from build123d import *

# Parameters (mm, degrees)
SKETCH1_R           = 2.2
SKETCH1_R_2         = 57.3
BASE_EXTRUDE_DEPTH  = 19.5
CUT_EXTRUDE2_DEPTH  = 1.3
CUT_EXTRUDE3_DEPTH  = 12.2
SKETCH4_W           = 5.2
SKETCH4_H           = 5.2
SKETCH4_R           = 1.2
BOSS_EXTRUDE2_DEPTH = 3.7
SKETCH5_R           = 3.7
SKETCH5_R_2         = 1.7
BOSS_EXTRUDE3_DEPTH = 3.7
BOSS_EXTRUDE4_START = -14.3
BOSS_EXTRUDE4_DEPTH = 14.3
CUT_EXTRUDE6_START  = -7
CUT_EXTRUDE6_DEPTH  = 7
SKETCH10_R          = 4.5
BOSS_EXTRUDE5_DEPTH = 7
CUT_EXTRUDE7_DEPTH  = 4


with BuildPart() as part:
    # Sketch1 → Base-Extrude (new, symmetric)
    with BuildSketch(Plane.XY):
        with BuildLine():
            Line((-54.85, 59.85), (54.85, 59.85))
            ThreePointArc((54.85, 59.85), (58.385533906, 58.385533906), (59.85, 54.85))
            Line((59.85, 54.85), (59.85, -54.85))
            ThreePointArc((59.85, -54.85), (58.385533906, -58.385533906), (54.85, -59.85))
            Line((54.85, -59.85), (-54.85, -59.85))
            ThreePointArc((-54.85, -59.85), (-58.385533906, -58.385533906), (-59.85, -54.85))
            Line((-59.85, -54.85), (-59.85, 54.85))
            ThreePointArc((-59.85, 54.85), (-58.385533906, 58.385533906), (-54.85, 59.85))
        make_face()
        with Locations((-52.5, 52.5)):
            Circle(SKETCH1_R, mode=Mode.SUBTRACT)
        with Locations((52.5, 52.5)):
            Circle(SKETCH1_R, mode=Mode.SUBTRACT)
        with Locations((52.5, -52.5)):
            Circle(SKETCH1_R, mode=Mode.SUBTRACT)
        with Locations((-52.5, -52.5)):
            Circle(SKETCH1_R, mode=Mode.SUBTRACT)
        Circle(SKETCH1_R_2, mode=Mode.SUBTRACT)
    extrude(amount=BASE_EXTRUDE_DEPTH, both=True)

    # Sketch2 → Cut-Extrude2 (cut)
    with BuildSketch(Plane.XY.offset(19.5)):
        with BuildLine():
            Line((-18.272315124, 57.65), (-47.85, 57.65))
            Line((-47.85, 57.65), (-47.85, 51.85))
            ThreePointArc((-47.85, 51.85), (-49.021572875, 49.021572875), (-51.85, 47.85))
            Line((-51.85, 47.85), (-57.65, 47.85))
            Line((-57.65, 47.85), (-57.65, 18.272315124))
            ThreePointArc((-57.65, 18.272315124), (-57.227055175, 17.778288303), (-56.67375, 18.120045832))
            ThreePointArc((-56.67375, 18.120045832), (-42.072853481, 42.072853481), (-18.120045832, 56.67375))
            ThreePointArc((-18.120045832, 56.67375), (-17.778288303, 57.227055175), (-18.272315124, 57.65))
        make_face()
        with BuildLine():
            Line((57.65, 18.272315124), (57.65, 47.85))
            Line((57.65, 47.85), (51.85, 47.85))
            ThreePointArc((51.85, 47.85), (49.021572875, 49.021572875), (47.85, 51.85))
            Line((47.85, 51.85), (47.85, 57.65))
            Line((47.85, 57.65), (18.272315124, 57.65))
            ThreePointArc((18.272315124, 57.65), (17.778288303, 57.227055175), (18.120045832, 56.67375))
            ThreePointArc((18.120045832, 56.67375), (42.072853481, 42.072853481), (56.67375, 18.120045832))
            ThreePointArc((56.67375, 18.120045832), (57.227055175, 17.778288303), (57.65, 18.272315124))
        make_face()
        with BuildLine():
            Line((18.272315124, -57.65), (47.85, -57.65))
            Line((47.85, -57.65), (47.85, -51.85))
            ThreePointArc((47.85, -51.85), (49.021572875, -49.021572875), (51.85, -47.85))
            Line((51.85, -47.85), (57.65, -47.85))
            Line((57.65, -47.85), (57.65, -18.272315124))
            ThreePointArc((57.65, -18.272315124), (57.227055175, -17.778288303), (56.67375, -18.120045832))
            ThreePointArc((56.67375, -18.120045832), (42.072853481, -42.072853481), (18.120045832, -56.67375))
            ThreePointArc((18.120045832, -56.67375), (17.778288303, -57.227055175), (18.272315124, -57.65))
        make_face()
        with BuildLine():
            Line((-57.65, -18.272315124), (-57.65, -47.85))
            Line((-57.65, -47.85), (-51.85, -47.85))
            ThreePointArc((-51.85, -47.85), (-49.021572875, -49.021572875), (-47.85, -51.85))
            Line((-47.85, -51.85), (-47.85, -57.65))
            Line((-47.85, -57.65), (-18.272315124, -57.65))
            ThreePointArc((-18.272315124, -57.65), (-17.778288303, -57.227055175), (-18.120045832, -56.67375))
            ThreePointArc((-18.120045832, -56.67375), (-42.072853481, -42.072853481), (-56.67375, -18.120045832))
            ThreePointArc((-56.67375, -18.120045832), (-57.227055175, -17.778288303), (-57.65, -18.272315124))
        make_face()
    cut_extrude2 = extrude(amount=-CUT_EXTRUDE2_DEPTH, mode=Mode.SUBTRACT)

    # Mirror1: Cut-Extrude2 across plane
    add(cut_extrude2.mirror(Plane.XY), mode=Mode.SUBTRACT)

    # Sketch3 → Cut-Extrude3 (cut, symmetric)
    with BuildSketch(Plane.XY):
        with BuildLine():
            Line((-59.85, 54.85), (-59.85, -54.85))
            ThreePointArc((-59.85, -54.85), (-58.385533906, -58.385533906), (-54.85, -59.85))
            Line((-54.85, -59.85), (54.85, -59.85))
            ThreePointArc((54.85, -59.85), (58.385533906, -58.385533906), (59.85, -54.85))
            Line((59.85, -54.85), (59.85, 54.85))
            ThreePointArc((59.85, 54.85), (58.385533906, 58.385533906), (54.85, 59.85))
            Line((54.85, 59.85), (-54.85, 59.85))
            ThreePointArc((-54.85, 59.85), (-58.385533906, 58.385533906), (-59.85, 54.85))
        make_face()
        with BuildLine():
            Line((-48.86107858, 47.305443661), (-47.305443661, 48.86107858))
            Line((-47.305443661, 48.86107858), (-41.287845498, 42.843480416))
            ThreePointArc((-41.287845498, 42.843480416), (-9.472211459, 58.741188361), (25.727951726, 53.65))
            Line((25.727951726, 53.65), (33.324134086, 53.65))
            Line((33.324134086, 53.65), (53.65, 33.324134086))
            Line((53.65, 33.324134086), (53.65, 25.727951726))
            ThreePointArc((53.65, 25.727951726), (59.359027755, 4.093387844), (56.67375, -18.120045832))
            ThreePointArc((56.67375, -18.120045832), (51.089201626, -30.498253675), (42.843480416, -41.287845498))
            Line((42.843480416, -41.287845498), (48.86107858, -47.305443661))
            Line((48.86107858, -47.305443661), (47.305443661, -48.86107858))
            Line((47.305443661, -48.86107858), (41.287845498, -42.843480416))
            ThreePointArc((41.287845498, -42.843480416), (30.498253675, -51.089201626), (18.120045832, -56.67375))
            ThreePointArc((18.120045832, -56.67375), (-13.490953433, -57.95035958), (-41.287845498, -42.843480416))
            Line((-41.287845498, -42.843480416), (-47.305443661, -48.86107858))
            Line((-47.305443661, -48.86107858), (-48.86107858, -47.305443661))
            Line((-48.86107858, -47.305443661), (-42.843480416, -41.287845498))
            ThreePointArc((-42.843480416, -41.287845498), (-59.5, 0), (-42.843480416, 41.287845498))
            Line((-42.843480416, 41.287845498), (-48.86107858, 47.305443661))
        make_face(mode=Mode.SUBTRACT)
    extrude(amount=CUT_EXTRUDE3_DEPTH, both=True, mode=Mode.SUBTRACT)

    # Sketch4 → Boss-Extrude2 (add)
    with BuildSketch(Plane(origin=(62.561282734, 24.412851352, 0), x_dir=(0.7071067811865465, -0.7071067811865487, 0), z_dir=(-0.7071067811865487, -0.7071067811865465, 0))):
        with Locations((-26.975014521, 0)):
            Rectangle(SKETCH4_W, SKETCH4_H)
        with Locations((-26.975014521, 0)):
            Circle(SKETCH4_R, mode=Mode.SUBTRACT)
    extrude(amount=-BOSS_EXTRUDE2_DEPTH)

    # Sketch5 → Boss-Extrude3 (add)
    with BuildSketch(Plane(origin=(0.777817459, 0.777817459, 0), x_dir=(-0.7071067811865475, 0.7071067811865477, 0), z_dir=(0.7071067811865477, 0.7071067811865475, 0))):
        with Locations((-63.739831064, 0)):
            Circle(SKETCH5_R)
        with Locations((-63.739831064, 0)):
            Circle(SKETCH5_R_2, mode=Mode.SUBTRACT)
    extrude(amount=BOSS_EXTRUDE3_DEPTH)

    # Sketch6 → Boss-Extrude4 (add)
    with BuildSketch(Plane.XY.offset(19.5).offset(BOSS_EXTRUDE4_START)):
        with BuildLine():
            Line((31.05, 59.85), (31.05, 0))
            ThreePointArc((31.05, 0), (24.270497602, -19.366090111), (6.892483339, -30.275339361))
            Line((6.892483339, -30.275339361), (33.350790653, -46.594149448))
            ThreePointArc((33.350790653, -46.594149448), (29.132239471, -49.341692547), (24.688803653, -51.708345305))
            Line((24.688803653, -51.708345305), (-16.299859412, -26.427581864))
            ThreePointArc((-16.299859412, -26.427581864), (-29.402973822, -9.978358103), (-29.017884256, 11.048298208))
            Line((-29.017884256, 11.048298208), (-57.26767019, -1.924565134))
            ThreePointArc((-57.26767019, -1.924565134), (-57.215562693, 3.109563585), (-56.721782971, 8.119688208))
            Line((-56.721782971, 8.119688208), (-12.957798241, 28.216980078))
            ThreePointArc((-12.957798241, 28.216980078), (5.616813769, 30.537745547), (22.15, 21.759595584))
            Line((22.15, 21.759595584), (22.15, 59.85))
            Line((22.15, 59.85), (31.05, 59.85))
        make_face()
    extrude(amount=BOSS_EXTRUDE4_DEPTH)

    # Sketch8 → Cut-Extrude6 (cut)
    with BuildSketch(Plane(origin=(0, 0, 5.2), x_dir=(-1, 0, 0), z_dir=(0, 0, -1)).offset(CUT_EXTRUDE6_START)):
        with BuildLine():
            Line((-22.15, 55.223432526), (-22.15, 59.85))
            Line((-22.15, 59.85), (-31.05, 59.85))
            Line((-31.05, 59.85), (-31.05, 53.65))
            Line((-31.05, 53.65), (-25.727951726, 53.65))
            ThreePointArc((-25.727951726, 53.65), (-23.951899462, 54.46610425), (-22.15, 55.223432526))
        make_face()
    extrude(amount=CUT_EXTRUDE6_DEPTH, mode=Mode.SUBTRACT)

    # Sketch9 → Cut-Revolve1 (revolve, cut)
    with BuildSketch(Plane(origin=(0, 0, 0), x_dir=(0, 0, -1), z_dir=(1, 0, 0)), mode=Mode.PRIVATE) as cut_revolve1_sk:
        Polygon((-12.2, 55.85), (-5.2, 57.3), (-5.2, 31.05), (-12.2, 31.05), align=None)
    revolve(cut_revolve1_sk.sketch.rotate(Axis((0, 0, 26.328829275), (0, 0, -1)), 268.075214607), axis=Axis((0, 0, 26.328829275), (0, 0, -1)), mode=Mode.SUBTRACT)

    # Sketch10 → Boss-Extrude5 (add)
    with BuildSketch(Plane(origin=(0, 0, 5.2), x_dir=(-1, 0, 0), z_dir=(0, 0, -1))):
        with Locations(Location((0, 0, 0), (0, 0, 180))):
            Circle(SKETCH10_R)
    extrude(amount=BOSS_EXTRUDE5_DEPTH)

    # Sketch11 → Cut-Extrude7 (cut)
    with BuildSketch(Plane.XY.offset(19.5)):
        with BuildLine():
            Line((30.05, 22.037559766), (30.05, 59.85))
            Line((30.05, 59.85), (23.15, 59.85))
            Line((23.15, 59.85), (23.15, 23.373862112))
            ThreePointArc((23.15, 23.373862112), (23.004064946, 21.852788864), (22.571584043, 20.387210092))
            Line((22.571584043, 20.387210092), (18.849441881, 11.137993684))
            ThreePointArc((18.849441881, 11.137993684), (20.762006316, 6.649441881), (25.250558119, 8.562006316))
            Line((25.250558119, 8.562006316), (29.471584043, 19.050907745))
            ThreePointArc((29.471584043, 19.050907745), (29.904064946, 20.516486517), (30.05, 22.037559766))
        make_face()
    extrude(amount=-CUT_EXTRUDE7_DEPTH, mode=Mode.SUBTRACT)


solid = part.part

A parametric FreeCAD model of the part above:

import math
import FreeCAD as App
import Part
import Sketcher
from FreeCAD import Vector
Q = App.Units.Quantity

doc = App.newDocument("Part")
body = doc.addObject("PartDesign::Body", "Body")

# Sketch on XY plane
sketch1 = doc.addObject("Sketcher::SketchObject", "Sketch")
body.addObject(sketch1)
sketch1.AttachmentSupport = (doc.XY_Plane, [""])
sketch1.MapMode = "FlatFace"
sketch1.addGeometry([
    Part.LineSegment(Vector(54.85, 59.85, 0), Vector(-54.85, 59.85, 0)),  # 0
    Part.ArcOfCircle(Part.Circle(Vector(-54.85, 54.85, 0), Vector(0, 0, 1), 5), math.radians(90), math.radians(180)),  # 1
    Part.LineSegment(Vector(-59.85, 54.85, 0), Vector(-59.85, -54.85, 0)),  # 2
    Part.ArcOfCircle(Part.Circle(Vector(-54.85, -54.85, 0), Vector(0, 0, 1), 5), math.radians(180), math.radians(270)),  # 3
    Part.LineSegment(Vector(-54.85, -59.85, 0), Vector(54.85, -59.85, 0)),  # 4
    Part.ArcOfCircle(Part.Circle(Vector(54.85, -54.85, 0), Vector(0, 0, 1), 5), math.radians(-90), math.radians(0)),  # 5
    Part.LineSegment(Vector(59.85, -54.85, 0), Vector(59.85, 54.85, 0)),  # 6
    Part.ArcOfCircle(Part.Circle(Vector(54.85, 54.85, 0), Vector(0, 0, 1), 5), math.radians(0), math.radians(90)),  # 7
    Part.Circle(Vector(52.5, -52.5, 0), Vector(0, 0, 1), 2.2),  # 8
    Part.Circle(Vector(-52.5, -52.5, 0), Vector(0, 0, 1), 2.2),  # 9
    Part.Circle(Vector(52.5, 52.5, 0), Vector(0, 0, 1), 2.2),  # 10
    Part.Circle(Vector(0, 0, 0), Vector(0, 0, 1), 57.3),  # 11
    Part.Circle(Vector(-52.5, 52.5, 0), Vector(0, 0, 1), 2.2),  # 12
], False)
sketch1.addConstraint([
    Sketcher.Constraint("Tangent", 0, 2, 1, 1),
    Sketcher.Constraint("Tangent", 1, 2, 2, 1),
    Sketcher.Constraint("Tangent", 2, 2, 3, 1),
    Sketcher.Constraint("Tangent", 3, 2, 4, 1),
    Sketcher.Constraint("Tangent", 4, 2, 5, 1),
    Sketcher.Constraint("Tangent", 5, 2, 6, 1),
    Sketcher.Constraint("Tangent", 6, 2, 7, 1),
    Sketcher.Constraint("Tangent", 7, 2, 0, 1),
    Sketcher.Constraint("Horizontal", 0),
    Sketcher.Constraint("Vertical", 2),
    Sketcher.Constraint("Horizontal", 4),
    Sketcher.Constraint("Vertical", 6),
    Sketcher.Constraint("Coincident", 11, 3, -1, 1),
    Sketcher.Constraint("Equal", 1, 3),
    Sketcher.Constraint("Equal", 3, 5),
    Sketcher.Constraint("Equal", 5, 7),
    Sketcher.Constraint("Equal", 8, 9),
    Sketcher.Constraint("Equal", 9, 10),
    Sketcher.Constraint("Equal", 10, 12),
    Sketcher.Constraint("Symmetric", 1, 3, 5, 3, -1, 1),
    Sketcher.Constraint("Symmetric", 9, 3, 10, 3, -1, 1),
    Sketcher.Constraint("Symmetric", 8, 3, 12, 3, -1, 1),
    Sketcher.Constraint("Symmetric", 8, 3, 9, 3, -2),
    Sketcher.Constraint("Equal", 4, 2),
    Sketcher.Constraint("Radius", 1, Q("5 mm")),
    Sketcher.Constraint("Diameter", 8, Q("4.4 mm")),
    Sketcher.Constraint("Diameter", 11, Q("114.6 mm")),
    Sketcher.Constraint("DistanceX", 0, 2, 0, 1, Q("109.7 mm")),
    Sketcher.Constraint("DistanceX", 9, 3, 8, 3, Q("105 mm")),
    Sketcher.Constraint("DistanceY", 8, 3, 10, 3, Q("105 mm")),
])
pad1 = doc.addObject("PartDesign::Pad", "Pad")
body.addObject(pad1)
pad1.Profile = sketch1
pad1.Length = 39
pad1.Midplane = True

# Sketch on XY plane
sketch2 = doc.addObject("Sketcher::SketchObject", "Sketch001")
body.addObject(sketch2)
sketch2.AttachmentSupport = (doc.XY_Plane, [""])
sketch2.MapMode = "FlatFace"
sketch2.AttachmentOffset = App.Placement(Vector(0, 0, 19.5), App.Rotation())
sketch2.addGeometry([
    Part.LineSegment(Vector(-18.272315, 57.65, 0), Vector(-47.85, 57.65, 0)),  # 0
    Part.LineSegment(Vector(-47.85, 57.65, 0), Vector(-47.85, 51.85, 0)),  # 1
    Part.ArcOfCircle(Part.Circle(Vector(-51.85, 51.85, 0), Vector(0, 0, 1), 4), math.radians(-90), math.radians(0)),  # 2
    Part.LineSegment(Vector(-51.85, 47.85, 0), Vector(-57.65, 47.85, 0)),  # 3
    Part.LineSegment(Vector(-57.65, 47.85, 0), Vector(-57.65, 18.272315, 0)),  # 4
    Part.ArcOfCircle(Part.Circle(Vector(-57.15, 18.272315, 0), Vector(0, 0, 1), 0.5), math.radians(180), math.radians(342.269594)),  # 5
    Part.ArcOfCircle(Part.Circle(Vector(0, 0, 0), Vector(0, 0, 1), 59.5), math.radians(107.730406), math.radians(162.269594)),  # 6
    Part.ArcOfCircle(Part.Circle(Vector(-18.272315, 57.15, 0), Vector(0, 0, 1), 0.5), math.radians(-72.269594), math.radians(90)),  # 7
    Part.LineSegment(Vector(57.65, 18.272315, 0), Vector(57.65, 47.85, 0)),  # 8
    Part.LineSegment(Vector(57.65, 47.85, 0), Vector(51.85, 47.85, 0)),  # 9
    Part.ArcOfCircle(Part.Circle(Vector(51.85, 51.85, 0), Vector(0, 0, 1), 4), math.radians(180), math.radians(270)),  # 10
    Part.LineSegment(Vector(47.85, 51.85, 0), Vector(47.85, 57.65, 0)),  # 11
    Part.LineSegment(Vector(47.85, 57.65, 0), Vector(18.272315, 57.65, 0)),  # 12
    Part.ArcOfCircle(Part.Circle(Vector(18.272315, 57.15, 0), Vector(0, 0, 1), 0.5), math.radians(90), math.radians(252.269594)),  # 13
    Part.ArcOfCircle(Part.Circle(Vector(0, 0, 0), Vector(0, 0, 1), 59.5), math.radians(17.730406), math.radians(72.269594)),  # 14
    Part.ArcOfCircle(Part.Circle(Vector(57.15, 18.272315, 0), Vector(0, 0, 1), 0.5), math.radians(-162.269594), math.radians(0)),  # 15
    Part.LineSegment(Vector(18.272315, -57.65, 0), Vector(47.85, -57.65, 0)),  # 16
    Part.LineSegment(Vector(47.85, -57.65, 0), Vector(47.85, -51.85, 0)),  # 17
    Part.ArcOfCircle(Part.Circle(Vector(51.85, -51.85, 0), Vector(0, 0, 1), 4), math.radians(90), math.radians(180)),  # 18
    Part.LineSegment(Vector(51.85, -47.85, 0), Vector(57.65, -47.85, 0)),  # 19
    Part.LineSegment(Vector(57.65, -47.85, 0), Vector(57.65, -18.272315, 0)),  # 20
    Part.ArcOfCircle(Part.Circle(Vector(57.15, -18.272315, 0), Vector(0, 0, 1), 0.5), math.radians(0), math.radians(162.269594)),  # 21
    Part.ArcOfCircle(Part.Circle(Vector(0, 0, 0), Vector(0, 0, 1), 59.5), math.radians(-72.269594), math.radians(-17.730406)),  # 22
    Part.ArcOfCircle(Part.Circle(Vector(18.272315, -57.15, 0), Vector(0, 0, 1), 0.5), math.radians(107.730406), math.radians(270)),  # 23
    Part.LineSegment(Vector(-57.65, -18.272315, 0), Vector(-57.65, -47.85, 0)),  # 24
    Part.LineSegment(Vector(-57.65, -47.85, 0), Vector(-51.85, -47.85, 0)),  # 25
    Part.ArcOfCircle(Part.Circle(Vector(-51.85, -51.85, 0), Vector(0, 0, 1), 4), math.radians(0), math.radians(90)),  # 26
    Part.LineSegment(Vector(-47.85, -51.85, 0), Vector(-47.85, -57.65, 0)),  # 27
    Part.LineSegment(Vector(-47.85, -57.65, 0), Vector(-18.272315, -57.65, 0)),  # 28
    Part.ArcOfCircle(Part.Circle(Vector(-18.272315, -57.15, 0), Vector(0, 0, 1), 0.5), math.radians(-90), math.radians(72.269594)),  # 29
    Part.ArcOfCircle(Part.Circle(Vector(0, 0, 0), Vector(0, 0, 1), 59.5), math.radians(-162.269594), math.radians(-107.730406)),  # 30
    Part.ArcOfCircle(Part.Circle(Vector(-57.15, -18.272315, 0), Vector(0, 0, 1), 0.5), math.radians(17.730406), math.radians(180)),  # 31
], False)
sketch2.addConstraint([
    Sketcher.Constraint("Coincident", 0, 2, 1, 1),
    Sketcher.Constraint("Tangent", 1, 2, 2, 2),
    Sketcher.Constraint("Tangent", 2, 1, 3, 1),
    Sketcher.Constraint("Coincident", 3, 2, 4, 1),
    Sketcher.Constraint("Tangent", 4, 2, 5, 1),
    Sketcher.Constraint("Tangent", 5, 2, 6, 2),
    Sketcher.Constraint("Tangent", 6, 1, 7, 1),
    Sketcher.Constraint("Tangent", 7, 2, 0, 1),
    Sketcher.Constraint("Coincident", 8, 2, 9, 1),
    Sketcher.Constraint("Tangent", 9, 2, 10, 2),
    Sketcher.Constraint("Tangent", 10, 1, 11, 1),
    Sketcher.Constraint("Coincident", 11, 2, 12, 1),
    Sketcher.Constraint("Tangent", 12, 2, 13, 1),
    Sketcher.Constraint("Tangent", 13, 2, 14, 2),
    Sketcher.Constraint("Tangent", 14, 1, 15, 1),
    Sketcher.Constraint("Tangent", 15, 2, 8, 1),
    Sketcher.Constraint("Coincident", 16, 2, 17, 1),
    Sketcher.Constraint("Tangent", 17, 2, 18, 2),
    Sketcher.Constraint("Tangent", 18, 1, 19, 1),
    Sketcher.Constraint("Coincident", 19, 2, 20, 1),
    Sketcher.Constraint("Tangent", 20, 2, 21, 1),
    Sketcher.Constraint("Tangent", 21, 2, 22, 2),
    Sketcher.Constraint("Tangent", 22, 1, 23, 1),
    Sketcher.Constraint("Tangent", 23, 2, 16, 1),
    Sketcher.Constraint("Coincident", 24, 2, 25, 1),
    Sketcher.Constraint("Tangent", 25, 2, 26, 2),
    Sketcher.Constraint("Tangent", 26, 1, 27, 1),
    Sketcher.Constraint("Coincident", 27, 2, 28, 1),
    Sketcher.Constraint("Tangent", 28, 2, 29, 1),
    Sketcher.Constraint("Tangent", 29, 2, 30, 2),
    Sketcher.Constraint("Tangent", 30, 1, 31, 1),
    Sketcher.Constraint("Tangent", 31, 2, 24, 1),
    Sketcher.Constraint("Horizontal", 0),
    Sketcher.Constraint("Vertical", 1),
    Sketcher.Constraint("Horizontal", 3),
    Sketcher.Constraint("Vertical", 4),
    Sketcher.Constraint("Vertical", 8),
    Sketcher.Constraint("Horizontal", 9),
    Sketcher.Constraint("Vertical", 11),
    Sketcher.Constraint("Horizontal", 12),
    Sketcher.Constraint("Horizontal", 16),
    Sketcher.Constraint("Vertical", 17),
    Sketcher.Constraint("Horizontal", 19),
    Sketcher.Constraint("Vertical", 20),
    Sketcher.Constraint("Vertical", 24),
    Sketcher.Constraint("Horizontal", 25),
    Sketcher.Constraint("Vertical", 27),
    Sketcher.Constraint("Horizontal", 28),
    Sketcher.Constraint("Coincident", 6, 3, -1, 1),
    Sketcher.Constraint("Coincident", 14, 3, -1, 1),
    Sketcher.Constraint("Coincident", 22, 3, -1, 1),
    Sketcher.Constraint("Coincident", 30, 3, -1, 1),
    Sketcher.Constraint("Equal", 5, 7),
    Sketcher.Constraint("Equal", 2, 10),
    Sketcher.Constraint("Equal", 7, 13),
    Sketcher.Constraint("Equal", 6, 14),
    Sketcher.Constraint("Equal", 13, 15),
    Sketcher.Constraint("Equal", 10, 18),
    Sketcher.Constraint("Equal", 15, 21),
    Sketcher.Constraint("Equal", 14, 22),
    Sketcher.Constraint("Equal", 21, 23),
    Sketcher.Constraint("Equal", 18, 26),
    Sketcher.Constraint("Equal", 23, 29),
    Sketcher.Constraint("Equal", 22, 30),
    Sketcher.Constraint("Equal", 29, 31),
    Sketcher.Constraint("Symmetric", 2, 3, 18, 3, -1, 1),
    Sketcher.Constraint("Symmetric", 10, 3, 26, 3, -1, 1),
    Sketcher.Constraint("Symmetric", 2, 3, 10, 3, -2),
    Sketcher.Constraint("Horizontal", 7, 3, 13, 3),
    Sketcher.Constraint("Horizontal", 5, 3, 15, 3),
    Sketcher.Constraint("Horizontal", 23, 3, 29, 3),
    Sketcher.Constraint("Horizontal", 21, 3, 31, 3),
    Sketcher.Constraint("Vertical", 15, 3, 21, 3),
    Sketcher.Constraint("Vertical", 13, 3, 23, 3),
    Sketcher.Constraint("Equal", 25, 1),
    Sketcher.Constraint("Equal", 28, 4),
    Sketcher.Constraint("Radius", 2, Q("4 mm")),
    Sketcher.Constraint("Radius", 5, Q("0.5 mm")),
    Sketcher.Constraint("Radius", 6, Q("59.5 mm")),
    Sketcher.Constraint("DistanceX", 3, 2, 3, 1, Q("5.8 mm")),
    Sketcher.Constraint("DistanceX", 5, 3, 10, 3, Q("109 mm")),
])
pocket1 = doc.addObject("PartDesign::Pocket", "Pocket")
body.addObject(pocket1)
pocket1.Profile = sketch2
pocket1.Length = 1.3
doc.recompute()

mirrored = doc.addObject("PartDesign::Mirrored", "Mirrored")
body.addObject(mirrored)
mirrored.Originals = [pocket1]
mirrored.MirrorPlane = (doc.XY_Plane, [""])
body.Tip = mirrored

# Sketch on XY plane
sketch3 = doc.addObject("Sketcher::SketchObject", "Sketch002")
body.addObject(sketch3)
sketch3.AttachmentSupport = (doc.XY_Plane, [""])
sketch3.MapMode = "FlatFace"
sketch3.addGeometry([
    Part.LineSegment(Vector(-59.85, 54.85, 0), Vector(-59.85, -54.85, 0)),  # 0
    Part.ArcOfCircle(Part.Circle(Vector(-54.85, -54.85, 0), Vector(0, 0, 1), 5), math.radians(180), math.radians(270)),  # 1
    Part.LineSegment(Vector(-54.85, -59.85, 0), Vector(54.85, -59.85, 0)),  # 2
    Part.ArcOfCircle(Part.Circle(Vector(54.85, -54.85, 0), Vector(0, 0, 1), 5), math.radians(-90), math.radians(0)),  # 3
    Part.LineSegment(Vector(59.85, -54.85, 0), Vector(59.85, 54.85, 0)),  # 4
    Part.ArcOfCircle(Part.Circle(Vector(54.85, 54.85, 0), Vector(0, 0, 1), 5), math.radians(0), math.radians(90)),  # 5
    Part.LineSegment(Vector(54.85, 59.85, 0), Vector(-54.85, 59.85, 0)),  # 6
    Part.ArcOfCircle(Part.Circle(Vector(-54.85, 54.85, 0), Vector(0, 0, 1), 5), math.radians(90), math.radians(180)),  # 7
    Part.LineSegment(Vector(-42.84348, 41.287845, 0), Vector(-48.861079, 47.305444, 0)),  # 8
    Part.LineSegment(Vector(-48.861079, 47.305444, 0), Vector(-47.305444, 48.861079, 0)),  # 9
    Part.LineSegment(Vector(-47.305444, 48.861079, 0), Vector(-41.287845, 42.84348, 0)),  # 10
    Part.ArcOfCircle(Part.Circle(Vector(0, 0, 0), Vector(0, 0, 1), 59.5), math.radians(64.379871), math.radians(133.94069)),  # 11
    Part.LineSegment(Vector(25.727952, 53.65, 0), Vector(33.324134, 53.65, 0)),  # 12
    Part.LineSegment(Vector(33.324134, 53.65, 0), Vector(53.65, 33.324134, 0)),  # 13
    Part.LineSegment(Vector(53.65, 33.324134, 0), Vector(53.65, 25.727952, 0)),  # 14
    Part.ArcOfCircle(Part.Circle(Vector(0, 0, 0), Vector(0, 0, 1), 59.5), math.radians(-17.730406), math.radians(25.620129)),  # 15
    Part.ArcOfCircle(Part.Circle(Vector(0, 0, 0), Vector(0, 0, 1), 59.5), math.radians(-43.94069), math.radians(-17.730406)),  # 16
    Part.LineSegment(Vector(42.84348, -41.287845, 0), Vector(48.861079, -47.305444, 0)),  # 17
    Part.LineSegment(Vector(48.861079, -47.305444, 0), Vector(47.305444, -48.861079, 0)),  # 18
    Part.LineSegment(Vector(47.305444, -48.861079, 0), Vector(41.287845, -42.84348, 0)),  # 19
    Part.ArcOfCircle(Part.Circle(Vector(0, 0, 0), Vector(0, 0, 1), 59.5), math.radians(-72.269594), math.radians(-46.05931)),  # 20
    Part.ArcOfCircle(Part.Circle(Vector(0, 0, 0), Vector(0, 0, 1), 59.5), math.radians(-133.94069), math.radians(-72.269594)),  # 21
    Part.LineSegment(Vector(-41.287845, -42.84348, 0), Vector(-47.305444, -48.861079, 0)),  # 22
    Part.LineSegment(Vector(-47.305444, -48.861079, 0), Vector(-48.861079, -47.305444, 0)),  # 23
    Part.LineSegment(Vector(-48.861079, -47.305444, 0), Vector(-42.84348, -41.287845, 0)),  # 24
    Part.ArcOfCircle(Part.Circle(Vector(0, 0, 0), Vector(0, 0, 1), 59.5), math.radians(136.05931), math.radians(223.94069)),  # 25
], False)
sketch3.addConstraint([
    Sketcher.Constraint("Tangent", 0, 2, 1, 1),
    Sketcher.Constraint("Tangent", 1, 2, 2, 1),
    Sketcher.Constraint("Tangent", 2, 2, 3, 1),
    Sketcher.Constraint("Tangent", 3, 2, 4, 1),
    Sketcher.Constraint("Tangent", 4, 2, 5, 1),
    Sketcher.Constraint("Tangent", 5, 2, 6, 1),
    Sketcher.Constraint("Tangent", 6, 2, 7, 1),
    Sketcher.Constraint("Tangent", 7, 2, 0, 1),
    Sketcher.Constraint("Coincident", 8, 2, 9, 1),
    Sketcher.Constraint("Coincident", 9, 2, 10, 1),
    Sketcher.Constraint("Coincident", 10, 2, 11, 2),
    Sketcher.Constraint("Coincident", 11, 1, 12, 1),
    Sketcher.Constraint("Coincident", 12, 2, 13, 1),
    Sketcher.Constraint("Coincident", 13, 2, 14, 1),
    Sketcher.Constraint("Coincident", 14, 2, 15, 2),
    Sketcher.Constraint("Tangent", 15, 1, 16, 2),
    Sketcher.Constraint("Coincident", 16, 1, 17, 1),
    Sketcher.Constraint("Coincident", 17, 2, 18, 1),
    Sketcher.Constraint("Coincident", 18, 2, 19, 1),
    Sketcher.Constraint("Coincident", 19, 2, 20, 2),
    Sketcher.Constraint("Tangent", 20, 1, 21, 2),
    Sketcher.Constraint("Coincident", 21, 1, 22, 1),
    Sketcher.Constraint("Coincident", 22, 2, 23, 1),
    Sketcher.Constraint("Coincident", 23, 2, 24, 1),
    Sketcher.Constraint("Coincident", 24, 2, 25, 2),
    Sketcher.Constraint("Coincident", 25, 1, 8, 1),
    Sketcher.Constraint("Vertical", 0),
    Sketcher.Constraint("Horizontal", 2),
    Sketcher.Constraint("Vertical", 4),
    Sketcher.Constraint("Horizontal", 6),
    Sketcher.Constraint("Horizontal", 12),
    Sketcher.Constraint("Vertical", 14),
    Sketcher.Constraint("Coincident", 11, 3, -1, 1),
    Sketcher.Constraint("Coincident", 15, 3, -1, 1),
    Sketcher.Constraint("Coincident", 20, 3, -1, 1),
    Sketcher.Constraint("Coincident", 25, 3, -1, 1),
    Sketcher.Constraint("Equal", 1, 3),
    Sketcher.Constraint("Equal", 3, 5),
    Sketcher.Constraint("Equal", 5, 7),
    Sketcher.Constraint("Equal", 11, 15),
    Sketcher.Constraint("Equal", 15, 16),
    Sketcher.Constraint("Equal", 16, 20),
    Sketcher.Constraint("Equal", 20, 21),
    Sketcher.Constraint("Equal", 21, 25),
    Sketcher.Constraint("Symmetric", 1, 3, 5, 3, -1, 1),
    Sketcher.Constraint("Symmetric", 8, 2, 17, 2, -1, 1),
    Sketcher.Constraint("Symmetric", 9, 2, 18, 2, -1, 1),
    Sketcher.Constraint("Symmetric", 18, 2, 22, 2, -2),
    Sketcher.Constraint("Symmetric", 17, 2, 23, 2, -2),
    Sketcher.Constraint("Perpendicular", 8, 9),
    Sketcher.Constraint("Perpendicular", 9, 10),
    Sketcher.Constraint("Parallel", 10, 13),
    Sketcher.Constraint("Parallel", 13, 17),
    Sketcher.Constraint("Perpendicular", 18, 19),
    Sketcher.Constraint("Perpendicular", 19, 22),
    Sketcher.Constraint("Perpendicular", 22, 23),
    Sketcher.Constraint("Perpendicular", 23, 24),
    Sketcher.Constraint("Equal", 6, 0),
    Sketcher.Constraint("Equal", 12, 14),
    Sketcher.Constraint("Equal", 8, 10),
    Sketcher.Constraint("Radius", 1, Q("5 mm")),
    Sketcher.Constraint("Radius", 11, Q("59.5 mm")),
    Sketcher.Constraint("DistanceX", 2, 1, 2, 2, Q("109.7 mm")),
    Sketcher.Constraint("Distance", 9, Q("2.2 mm")),
    Sketcher.Constraint("DistanceY", 11, 1, 5, 3, Q("1.2 mm")),
    Sketcher.Constraint("DistanceX", 9, 2, 10, 2, Q("6.017598 mm")),
    Sketcher.Constraint("DistanceY", 16, 1, 15, 1, Q("23.1678 mm")),
    Sketcher.Constraint("DistanceX", 20, 1, 19, 2, Q("23.1678 mm")),
    Sketcher.Constraint("DistanceX", 12, 1, 12, 2, Q("7.596182 mm")),
])
pocket2 = doc.addObject("PartDesign::Pocket", "Pocket001")
body.addObject(pocket2)
pocket2.Profile = sketch3
pocket2.Length = 24.4
pocket2.Midplane = True

# Sketch on an angled plane
sketch4 = doc.addObject("Sketcher::SketchObject", "Sketch003")
body.addObject(sketch4)
sketch4.Placement = App.Placement(Vector(62.561283, 24.412851, 0), App.Rotation(Vector(0.707106781, -0.707106781, 0), Vector(0, 0, 0.999999999), Vector(-0.707106781, -0.707106781, 0), "ZXY"))
sketch4.addGeometry([
    Part.LineSegment(Vector(-29.575015, 2.6, 0), Vector(-29.575015, -2.6, 0)),  # 0
    Part.LineSegment(Vector(-29.575015, -2.6, 0), Vector(-24.375015, -2.6, 0)),  # 1
    Part.LineSegment(Vector(-24.375015, -2.6, 0), Vector(-24.375015, 2.6, 0)),  # 2
    Part.LineSegment(Vector(-24.375015, 2.6, 0), Vector(-29.575015, 2.6, 0)),  # 3
    Part.Circle(Vector(-26.975015, 0, 0), Vector(0, 0, 1), 1.2),  # 4
], False)
sketch4.addConstraint([
    Sketcher.Constraint("Coincident", 0, 2, 1, 1),
    Sketcher.Constraint("Coincident", 1, 2, 2, 1),
    Sketcher.Constraint("Coincident", 2, 2, 3, 1),
    Sketcher.Constraint("Coincident", 3, 2, 0, 1),
    Sketcher.Constraint("Vertical", 0),
    Sketcher.Constraint("Horizontal", 1),
    Sketcher.Constraint("Vertical", 2),
    Sketcher.Constraint("Horizontal", 3),
    Sketcher.Constraint("PointOnObject", 4, 3, -1),
    Sketcher.Constraint("Equal", 3, 0),
    Sketcher.Constraint("Diameter", 4, Q("2.4 mm")),
    Sketcher.Constraint("DistanceX", 1, 1, 1, 2, Q("5.2 mm")),
    Sketcher.Constraint("DistanceY", 0, 2, -1, 1, Q("2.6 mm")),
    Sketcher.Constraint("DistanceX", 0, 2, 4, 3, Q("2.6 mm")),
    Sketcher.Constraint("DistanceX", 4, 3, -1, 1, Q("26.975015 mm")),
])
pad2 = doc.addObject("PartDesign::Pad", "Pad001")
body.addObject(pad2)
pad2.Profile = sketch4
pad2.Length = 3.7
pad2.Reversed = True

# Sketch on an angled plane
sketch5 = doc.addObject("Sketcher::SketchObject", "Sketch004")
body.addObject(sketch5)
sketch5.Placement = App.Placement(Vector(0.777817, 0.777817, 0), App.Rotation(Vector(-0.707106781, 0.707106781, 0), Vector(0, 0, 0.999999999), Vector(0.707106781, 0.707106781, 0), "ZXY"))
sketch5.addGeometry([
    Part.Circle(Vector(-63.739831, 0, 0), Vector(0, 0, 1), 3.7),
    Part.Circle(Vector(-63.739831, 0, 0), Vector(0, 0, 1), 1.7),
], False)
sketch5.addConstraint([
    Sketcher.Constraint("Coincident", 1, 3, 0, 3),
    Sketcher.Constraint("PointOnObject", 0, 3, -1),
    Sketcher.Constraint("Diameter", 0, Q("7.4 mm")),
    Sketcher.Constraint("Diameter", 1, Q("3.4 mm")),
    Sketcher.Constraint("DistanceX", 0, 3, -1, 1, Q("63.739831 mm")),
])
pad3 = doc.addObject("PartDesign::Pad", "Pad002")
body.addObject(pad3)
pad3.Profile = sketch5
pad3.Length = 3.7

# Sketch on XY plane
sketch6 = doc.addObject("Sketcher::SketchObject", "Sketch005")
body.addObject(sketch6)
sketch6.AttachmentSupport = (doc.XY_Plane, [""])
sketch6.MapMode = "FlatFace"
sketch6.AttachmentOffset = App.Placement(Vector(0, 0, 5.2), App.Rotation())
sketch6.addGeometry([
    Part.LineSegment(Vector(31.05, 0, 0), Vector(31.05, 59.85, 0)),  # 0
    Part.LineSegment(Vector(31.05, 59.85, 0), Vector(22.15, 59.85, 0)),  # 1
    Part.LineSegment(Vector(22.15, 59.85, 0), Vector(22.15, 21.759596, 0)),  # 2
    Part.ArcOfCircle(Part.Circle(Vector(0, 0, 0), Vector(0, 0, 1), 31.05), math.radians(44.490591), math.radians(114.665528)),  # 3
    Part.LineSegment(Vector(-12.957798, 28.21698, 0), Vector(-56.721783, 8.119688, 0)),  # 4
    Part.ArcOfCircle(Part.Circle(Vector(0, 0, 0), Vector(0, 0, 1), 57.3), math.radians(171.853489), math.radians(181.924785)),  # 5
    Part.LineSegment(Vector(-57.26767, -1.924565, 0), Vector(-29.017884, 11.048298, 0)),  # 6
    Part.ArcOfCircle(Part.Circle(Vector(0, 0, 0), Vector(0, 0, 1), 31.05), math.radians(159.156119), math.radians(238.334772)),  # 7
    Part.LineSegment(Vector(-16.299859, -26.427582, 0), Vector(24.688804, -51.708345, 0)),  # 8
    Part.ArcOfCircle(Part.Circle(Vector(0, 0, 0), Vector(0, 0, 1), 57.3), math.radians(-64.477267), math.radians(-54.405971)),  # 9
    Part.LineSegment(Vector(33.350791, -46.594149, 0), Vector(6.892483, -30.275339, 0)),  # 10
    Part.ArcOfCircle(Part.Circle(Vector(0, 0, 0), Vector(0, 0, 1), 31.05), math.radians(-77.174637), math.radians(0)),  # 11
], False)
sketch6.addConstraint([
    Sketcher.Constraint("Coincident", 0, 2, 1, 1),
    Sketcher.Constraint("Coincident", 1, 2, 2, 1),
    Sketcher.Constraint("Coincident", 2, 2, 3, 1),
    Sketcher.Constraint("Tangent", 3, 2, 4, 1),
    Sketcher.Constraint("Coincident", 4, 2, 5, 1),
    Sketcher.Constraint("Coincident", 5, 2, 6, 1),
    Sketcher.Constraint("Coincident", 6, 2, 7, 1),
    Sketcher.Constraint("Tangent", 7, 2, 8, 1),
    Sketcher.Constraint("Coincident", 8, 2, 9, 1),
    Sketcher.Constraint("Coincident", 9, 2, 10, 1),
    Sketcher.Constraint("Coincident", 10, 2, 11, 1),
    Sketcher.Constraint("Tangent", 11, 2, 0, 1),
    Sketcher.Constraint("Vertical", 0),
    Sketcher.Constraint("Horizontal", 1),
    Sketcher.Constraint("Vertical", 2),
    Sketcher.Constraint("Coincident", 3, 3, -1, 1),
    Sketcher.Constraint("Coincident", 5, 3, -1, 1),
    Sketcher.Constraint("Coincident", 7, 3, -1, 1),
    Sketcher.Constraint("Coincident", 9, 3, -1, 1),
    Sketcher.Constraint("Coincident", 11, 3, -1, 1),
    Sketcher.Constraint("Equal", 3, 7),
    Sketcher.Constraint("Equal", 5, 9),
    Sketcher.Constraint("Equal", 7, 11),
    Sketcher.Constraint("Parallel", 4, 6),
    Sketcher.Constraint("Parallel", 8, 10),
    Sketcher.Constraint("Equal", 6, 10),
    Sketcher.Constraint("Radius", 5, Q("57.3 mm")),
    Sketcher.Constraint("Radius", 3, Q("31.05 mm")),
    Sketcher.Constraint("DistanceX", 1, 2, 1, 1, Q("8.9 mm")),
    Sketcher.Constraint("DistanceY", 0, 1, 0, 2, Q("59.85 mm")),
    Sketcher.Constraint("Distance", 6, Q("31.0861 mm")),
    Sketcher.Constraint("DistanceX", 3, 2, -1, 1, Q("12.957798 mm")),
    Sketcher.Constraint("DistanceX", 7, 2, -1, 1, Q("16.299859 mm")),
])
pad4 = doc.addObject("PartDesign::Pad", "Pad003")
body.addObject(pad4)
pad4.Profile = sketch6
pad4.Length = 14.3

# Sketch on XY plane
sketch7 = doc.addObject("Sketcher::SketchObject", "Sketch006")
body.addObject(sketch7)
sketch7.AttachmentSupport = (doc.XY_Plane, [""])
sketch7.MapMode = "FlatFace"
sketch7.AttachmentOffset = App.Placement(Vector(0, 0, 12.2), App.Rotation())
sketch7.addGeometry([
    Part.LineSegment(Vector(22.15, 55.223433, 0), Vector(22.15, 59.85, 0)),  # 0
    Part.LineSegment(Vector(22.15, 59.85, 0), Vector(31.05, 59.85, 0)),  # 1
    Part.LineSegment(Vector(31.05, 59.85, 0), Vector(31.05, 53.65, 0)),  # 2
    Part.LineSegment(Vector(31.05, 53.65, 0), Vector(25.727952, 53.65, 0)),  # 3
    Part.ArcOfCircle(Part.Circle(Vector(0, 0, 0), Vector(0, 0, 1), 59.5), math.radians(64.379871), math.radians(68.144385)),  # 4
], False)
sketch7.addConstraint([
    Sketcher.Constraint("Coincident", 0, 2, 1, 1),
    Sketcher.Constraint("Coincident", 1, 2, 2, 1),
    Sketcher.Constraint("Coincident", 2, 2, 3, 1),
    Sketcher.Constraint("Coincident", 3, 2, 4, 1),
    Sketcher.Constraint("Coincident", 4, 2, 0, 1),
    Sketcher.Constraint("Vertical", 0),
    Sketcher.Constraint("Horizontal", 1),
    Sketcher.Constraint("Vertical", 2),
    Sketcher.Constraint("Horizontal", 3),
    Sketcher.Constraint("Coincident", 4, 3, -1, 1),
    Sketcher.Constraint("Radius", 4, Q("59.5 mm")),
    Sketcher.Constraint("DistanceX", 1, 1, 1, 2, Q("8.9 mm")),
    Sketcher.Constraint("DistanceY", 2, 2, 2, 1, Q("6.2 mm")),
    Sketcher.Constraint("DistanceX", -1, 1, 0, 2, Q("22.15 mm")),
    Sketcher.Constraint("DistanceY", -1, 1, 0, 2, Q("59.85 mm")),
])
pocket3 = doc.addObject("PartDesign::Pocket", "Pocket002")
body.addObject(pocket3)
pocket3.Profile = sketch7
pocket3.Length = 7

# Sketch on YZ plane
sketch8 = doc.addObject("Sketcher::SketchObject", "Sketch007")
body.addObject(sketch8)
sketch8.AttachmentSupport = (doc.YZ_Plane, [""])
sketch8.MapMode = "FlatFace"
sketch8.addGeometry([
    Part.LineSegment(Vector(57.3, 5.2, 0), Vector(55.85, 12.2, 0)),
    Part.LineSegment(Vector(55.85, 12.2, 0), Vector(31.05, 12.2, 0)),
    Part.LineSegment(Vector(31.05, 12.2, 0), Vector(31.05, 5.2, 0)),
    Part.LineSegment(Vector(31.05, 5.2, 0), Vector(57.3, 5.2, 0)),
], False)
sketch8.addConstraint([
    Sketcher.Constraint("Coincident", 0, 2, 1, 1),
    Sketcher.Constraint("Coincident", 1, 2, 2, 1),
    Sketcher.Constraint("Coincident", 2, 2, 3, 1),
    Sketcher.Constraint("Coincident", 3, 2, 0, 1),
    Sketcher.Constraint("Horizontal", 1),
    Sketcher.Constraint("Vertical", 2),
    Sketcher.Constraint("Horizontal", 3),
    Sketcher.Constraint("DistanceY", 2, 2, 2, 1, Q("7 mm")),
    Sketcher.Constraint("DistanceX", 1, 2, 1, 1, Q("24.8 mm")),
    Sketcher.Constraint("DistanceX", 3, 1, 3, 2, Q("26.25 mm")),
    Sketcher.Constraint("DistanceY", -1, 1, 0, 2, Q("12.2 mm")),
    Sketcher.Constraint("DistanceX", -1, 1, 3, 2, Q("57.3 mm")),
])
groove = doc.addObject("PartDesign::Groove", "Groove")
body.addObject(groove)
groove.Profile = sketch8
groove.ReferenceAxis = (sketch8, ["V_Axis"])
groove.Angle = 360

# Sketch on XY plane
sketch9 = doc.addObject("Sketcher::SketchObject", "Sketch008")
body.addObject(sketch9)
sketch9.AttachmentSupport = (doc.XY_Plane, [""])
sketch9.MapMode = "FlatFace"
sketch9.AttachmentOffset = App.Placement(Vector(0, 0, 5.2), App.Rotation())
sketch9.addGeometry(Part.Circle(Vector(0, 0, 0), Vector(0, 0, 1), 4.5), False)
sketch9.addConstraint([
    Sketcher.Constraint("Coincident", 0, 3, -1, 1),
    Sketcher.Constraint("Diameter", 0, Q("9 mm")),
])
pad5 = doc.addObject("PartDesign::Pad", "Pad004")
body.addObject(pad5)
pad5.Profile = sketch9
pad5.Length = 7
pad5.Reversed = True

# Sketch on XY plane
sketch10 = doc.addObject("Sketcher::SketchObject", "Sketch009")
body.addObject(sketch10)
sketch10.AttachmentSupport = (doc.XY_Plane, [""])
sketch10.MapMode = "FlatFace"
sketch10.AttachmentOffset = App.Placement(Vector(0, 0, 19.5), App.Rotation())
sketch10.addGeometry([
    Part.LineSegment(Vector(30.05, 22.03756, 0), Vector(30.05, 59.85, 0)),  # 0
    Part.LineSegment(Vector(30.05, 59.85, 0), Vector(23.15, 59.85, 0)),  # 1
    Part.LineSegment(Vector(23.15, 59.85, 0), Vector(23.15, 23.373862, 0)),  # 2
    Part.ArcOfCircle(Part.Circle(Vector(15.15, 23.373862, 0), Vector(0, 0, 1), 8), math.radians(-21.921227), math.radians(0)),  # 3
    Part.LineSegment(Vector(22.571584, 20.38721, 0), Vector(18.849442, 11.137994, 0)),  # 4
    Part.ArcOfCircle(Part.Circle(Vector(22.05, 9.85, 0), Vector(0, 0, 1), 3.45), math.radians(158.078773), math.radians(338.078773)),  # 5
    Part.LineSegment(Vector(25.250558, 8.562006, 0), Vector(29.471584, 19.050908, 0)),  # 6
    Part.ArcOfCircle(Part.Circle(Vector(22.05, 22.03756, 0), Vector(0, 0, 1), 8), math.radians(-21.921227), math.radians(0)),  # 7
], False)
sketch10.addConstraint([
    Sketcher.Constraint("Coincident", 0, 2, 1, 1),
    Sketcher.Constraint("Coincident", 1, 2, 2, 1),
    Sketcher.Constraint("Tangent", 2, 2, 3, 2),
    Sketcher.Constraint("Tangent", 3, 1, 4, 1),
    Sketcher.Constraint("Tangent", 4, 2, 5, 1),
    Sketcher.Constraint("Tangent", 5, 2, 6, 1),
    Sketcher.Constraint("Tangent", 6, 2, 7, 1),
    Sketcher.Constraint("Tangent", 7, 2, 0, 1),
    Sketcher.Constraint("Vertical", 0),
    Sketcher.Constraint("Horizontal", 1),
    Sketcher.Constraint("Vertical", 2),
    Sketcher.Constraint("Equal", 3, 7),
    Sketcher.Constraint("Parallel", 4, 6),
    Sketcher.Constraint("Vertical", 5, 3, 7, 3),
    Sketcher.Constraint("Radius", 3, Q("8 mm")),
    Sketcher.Constraint("Radius", 5, Q("3.45 mm")),
    Sketcher.Constraint("DistanceX", 1, 2, 1, 1, Q("6.9 mm")),
    Sketcher.Constraint("DistanceY", 5, 3, 0, 2, Q("50 mm")),
    Sketcher.Constraint("DistanceX", -1, 1, 3, 3, Q("15.15 mm")),
    Sketcher.Constraint("DistanceY", -1, 1, 5, 3, Q("9.85 mm")),
    Sketcher.Constraint("DistanceY", 0, 1, 0, 2, Q("37.81244 mm")),
])
pocket4 = doc.addObject("PartDesign::Pocket", "Pocket003")
body.addObject(pocket4)
pocket4.Profile = sketch10
pocket4.Length = 4

doc.recompute()
